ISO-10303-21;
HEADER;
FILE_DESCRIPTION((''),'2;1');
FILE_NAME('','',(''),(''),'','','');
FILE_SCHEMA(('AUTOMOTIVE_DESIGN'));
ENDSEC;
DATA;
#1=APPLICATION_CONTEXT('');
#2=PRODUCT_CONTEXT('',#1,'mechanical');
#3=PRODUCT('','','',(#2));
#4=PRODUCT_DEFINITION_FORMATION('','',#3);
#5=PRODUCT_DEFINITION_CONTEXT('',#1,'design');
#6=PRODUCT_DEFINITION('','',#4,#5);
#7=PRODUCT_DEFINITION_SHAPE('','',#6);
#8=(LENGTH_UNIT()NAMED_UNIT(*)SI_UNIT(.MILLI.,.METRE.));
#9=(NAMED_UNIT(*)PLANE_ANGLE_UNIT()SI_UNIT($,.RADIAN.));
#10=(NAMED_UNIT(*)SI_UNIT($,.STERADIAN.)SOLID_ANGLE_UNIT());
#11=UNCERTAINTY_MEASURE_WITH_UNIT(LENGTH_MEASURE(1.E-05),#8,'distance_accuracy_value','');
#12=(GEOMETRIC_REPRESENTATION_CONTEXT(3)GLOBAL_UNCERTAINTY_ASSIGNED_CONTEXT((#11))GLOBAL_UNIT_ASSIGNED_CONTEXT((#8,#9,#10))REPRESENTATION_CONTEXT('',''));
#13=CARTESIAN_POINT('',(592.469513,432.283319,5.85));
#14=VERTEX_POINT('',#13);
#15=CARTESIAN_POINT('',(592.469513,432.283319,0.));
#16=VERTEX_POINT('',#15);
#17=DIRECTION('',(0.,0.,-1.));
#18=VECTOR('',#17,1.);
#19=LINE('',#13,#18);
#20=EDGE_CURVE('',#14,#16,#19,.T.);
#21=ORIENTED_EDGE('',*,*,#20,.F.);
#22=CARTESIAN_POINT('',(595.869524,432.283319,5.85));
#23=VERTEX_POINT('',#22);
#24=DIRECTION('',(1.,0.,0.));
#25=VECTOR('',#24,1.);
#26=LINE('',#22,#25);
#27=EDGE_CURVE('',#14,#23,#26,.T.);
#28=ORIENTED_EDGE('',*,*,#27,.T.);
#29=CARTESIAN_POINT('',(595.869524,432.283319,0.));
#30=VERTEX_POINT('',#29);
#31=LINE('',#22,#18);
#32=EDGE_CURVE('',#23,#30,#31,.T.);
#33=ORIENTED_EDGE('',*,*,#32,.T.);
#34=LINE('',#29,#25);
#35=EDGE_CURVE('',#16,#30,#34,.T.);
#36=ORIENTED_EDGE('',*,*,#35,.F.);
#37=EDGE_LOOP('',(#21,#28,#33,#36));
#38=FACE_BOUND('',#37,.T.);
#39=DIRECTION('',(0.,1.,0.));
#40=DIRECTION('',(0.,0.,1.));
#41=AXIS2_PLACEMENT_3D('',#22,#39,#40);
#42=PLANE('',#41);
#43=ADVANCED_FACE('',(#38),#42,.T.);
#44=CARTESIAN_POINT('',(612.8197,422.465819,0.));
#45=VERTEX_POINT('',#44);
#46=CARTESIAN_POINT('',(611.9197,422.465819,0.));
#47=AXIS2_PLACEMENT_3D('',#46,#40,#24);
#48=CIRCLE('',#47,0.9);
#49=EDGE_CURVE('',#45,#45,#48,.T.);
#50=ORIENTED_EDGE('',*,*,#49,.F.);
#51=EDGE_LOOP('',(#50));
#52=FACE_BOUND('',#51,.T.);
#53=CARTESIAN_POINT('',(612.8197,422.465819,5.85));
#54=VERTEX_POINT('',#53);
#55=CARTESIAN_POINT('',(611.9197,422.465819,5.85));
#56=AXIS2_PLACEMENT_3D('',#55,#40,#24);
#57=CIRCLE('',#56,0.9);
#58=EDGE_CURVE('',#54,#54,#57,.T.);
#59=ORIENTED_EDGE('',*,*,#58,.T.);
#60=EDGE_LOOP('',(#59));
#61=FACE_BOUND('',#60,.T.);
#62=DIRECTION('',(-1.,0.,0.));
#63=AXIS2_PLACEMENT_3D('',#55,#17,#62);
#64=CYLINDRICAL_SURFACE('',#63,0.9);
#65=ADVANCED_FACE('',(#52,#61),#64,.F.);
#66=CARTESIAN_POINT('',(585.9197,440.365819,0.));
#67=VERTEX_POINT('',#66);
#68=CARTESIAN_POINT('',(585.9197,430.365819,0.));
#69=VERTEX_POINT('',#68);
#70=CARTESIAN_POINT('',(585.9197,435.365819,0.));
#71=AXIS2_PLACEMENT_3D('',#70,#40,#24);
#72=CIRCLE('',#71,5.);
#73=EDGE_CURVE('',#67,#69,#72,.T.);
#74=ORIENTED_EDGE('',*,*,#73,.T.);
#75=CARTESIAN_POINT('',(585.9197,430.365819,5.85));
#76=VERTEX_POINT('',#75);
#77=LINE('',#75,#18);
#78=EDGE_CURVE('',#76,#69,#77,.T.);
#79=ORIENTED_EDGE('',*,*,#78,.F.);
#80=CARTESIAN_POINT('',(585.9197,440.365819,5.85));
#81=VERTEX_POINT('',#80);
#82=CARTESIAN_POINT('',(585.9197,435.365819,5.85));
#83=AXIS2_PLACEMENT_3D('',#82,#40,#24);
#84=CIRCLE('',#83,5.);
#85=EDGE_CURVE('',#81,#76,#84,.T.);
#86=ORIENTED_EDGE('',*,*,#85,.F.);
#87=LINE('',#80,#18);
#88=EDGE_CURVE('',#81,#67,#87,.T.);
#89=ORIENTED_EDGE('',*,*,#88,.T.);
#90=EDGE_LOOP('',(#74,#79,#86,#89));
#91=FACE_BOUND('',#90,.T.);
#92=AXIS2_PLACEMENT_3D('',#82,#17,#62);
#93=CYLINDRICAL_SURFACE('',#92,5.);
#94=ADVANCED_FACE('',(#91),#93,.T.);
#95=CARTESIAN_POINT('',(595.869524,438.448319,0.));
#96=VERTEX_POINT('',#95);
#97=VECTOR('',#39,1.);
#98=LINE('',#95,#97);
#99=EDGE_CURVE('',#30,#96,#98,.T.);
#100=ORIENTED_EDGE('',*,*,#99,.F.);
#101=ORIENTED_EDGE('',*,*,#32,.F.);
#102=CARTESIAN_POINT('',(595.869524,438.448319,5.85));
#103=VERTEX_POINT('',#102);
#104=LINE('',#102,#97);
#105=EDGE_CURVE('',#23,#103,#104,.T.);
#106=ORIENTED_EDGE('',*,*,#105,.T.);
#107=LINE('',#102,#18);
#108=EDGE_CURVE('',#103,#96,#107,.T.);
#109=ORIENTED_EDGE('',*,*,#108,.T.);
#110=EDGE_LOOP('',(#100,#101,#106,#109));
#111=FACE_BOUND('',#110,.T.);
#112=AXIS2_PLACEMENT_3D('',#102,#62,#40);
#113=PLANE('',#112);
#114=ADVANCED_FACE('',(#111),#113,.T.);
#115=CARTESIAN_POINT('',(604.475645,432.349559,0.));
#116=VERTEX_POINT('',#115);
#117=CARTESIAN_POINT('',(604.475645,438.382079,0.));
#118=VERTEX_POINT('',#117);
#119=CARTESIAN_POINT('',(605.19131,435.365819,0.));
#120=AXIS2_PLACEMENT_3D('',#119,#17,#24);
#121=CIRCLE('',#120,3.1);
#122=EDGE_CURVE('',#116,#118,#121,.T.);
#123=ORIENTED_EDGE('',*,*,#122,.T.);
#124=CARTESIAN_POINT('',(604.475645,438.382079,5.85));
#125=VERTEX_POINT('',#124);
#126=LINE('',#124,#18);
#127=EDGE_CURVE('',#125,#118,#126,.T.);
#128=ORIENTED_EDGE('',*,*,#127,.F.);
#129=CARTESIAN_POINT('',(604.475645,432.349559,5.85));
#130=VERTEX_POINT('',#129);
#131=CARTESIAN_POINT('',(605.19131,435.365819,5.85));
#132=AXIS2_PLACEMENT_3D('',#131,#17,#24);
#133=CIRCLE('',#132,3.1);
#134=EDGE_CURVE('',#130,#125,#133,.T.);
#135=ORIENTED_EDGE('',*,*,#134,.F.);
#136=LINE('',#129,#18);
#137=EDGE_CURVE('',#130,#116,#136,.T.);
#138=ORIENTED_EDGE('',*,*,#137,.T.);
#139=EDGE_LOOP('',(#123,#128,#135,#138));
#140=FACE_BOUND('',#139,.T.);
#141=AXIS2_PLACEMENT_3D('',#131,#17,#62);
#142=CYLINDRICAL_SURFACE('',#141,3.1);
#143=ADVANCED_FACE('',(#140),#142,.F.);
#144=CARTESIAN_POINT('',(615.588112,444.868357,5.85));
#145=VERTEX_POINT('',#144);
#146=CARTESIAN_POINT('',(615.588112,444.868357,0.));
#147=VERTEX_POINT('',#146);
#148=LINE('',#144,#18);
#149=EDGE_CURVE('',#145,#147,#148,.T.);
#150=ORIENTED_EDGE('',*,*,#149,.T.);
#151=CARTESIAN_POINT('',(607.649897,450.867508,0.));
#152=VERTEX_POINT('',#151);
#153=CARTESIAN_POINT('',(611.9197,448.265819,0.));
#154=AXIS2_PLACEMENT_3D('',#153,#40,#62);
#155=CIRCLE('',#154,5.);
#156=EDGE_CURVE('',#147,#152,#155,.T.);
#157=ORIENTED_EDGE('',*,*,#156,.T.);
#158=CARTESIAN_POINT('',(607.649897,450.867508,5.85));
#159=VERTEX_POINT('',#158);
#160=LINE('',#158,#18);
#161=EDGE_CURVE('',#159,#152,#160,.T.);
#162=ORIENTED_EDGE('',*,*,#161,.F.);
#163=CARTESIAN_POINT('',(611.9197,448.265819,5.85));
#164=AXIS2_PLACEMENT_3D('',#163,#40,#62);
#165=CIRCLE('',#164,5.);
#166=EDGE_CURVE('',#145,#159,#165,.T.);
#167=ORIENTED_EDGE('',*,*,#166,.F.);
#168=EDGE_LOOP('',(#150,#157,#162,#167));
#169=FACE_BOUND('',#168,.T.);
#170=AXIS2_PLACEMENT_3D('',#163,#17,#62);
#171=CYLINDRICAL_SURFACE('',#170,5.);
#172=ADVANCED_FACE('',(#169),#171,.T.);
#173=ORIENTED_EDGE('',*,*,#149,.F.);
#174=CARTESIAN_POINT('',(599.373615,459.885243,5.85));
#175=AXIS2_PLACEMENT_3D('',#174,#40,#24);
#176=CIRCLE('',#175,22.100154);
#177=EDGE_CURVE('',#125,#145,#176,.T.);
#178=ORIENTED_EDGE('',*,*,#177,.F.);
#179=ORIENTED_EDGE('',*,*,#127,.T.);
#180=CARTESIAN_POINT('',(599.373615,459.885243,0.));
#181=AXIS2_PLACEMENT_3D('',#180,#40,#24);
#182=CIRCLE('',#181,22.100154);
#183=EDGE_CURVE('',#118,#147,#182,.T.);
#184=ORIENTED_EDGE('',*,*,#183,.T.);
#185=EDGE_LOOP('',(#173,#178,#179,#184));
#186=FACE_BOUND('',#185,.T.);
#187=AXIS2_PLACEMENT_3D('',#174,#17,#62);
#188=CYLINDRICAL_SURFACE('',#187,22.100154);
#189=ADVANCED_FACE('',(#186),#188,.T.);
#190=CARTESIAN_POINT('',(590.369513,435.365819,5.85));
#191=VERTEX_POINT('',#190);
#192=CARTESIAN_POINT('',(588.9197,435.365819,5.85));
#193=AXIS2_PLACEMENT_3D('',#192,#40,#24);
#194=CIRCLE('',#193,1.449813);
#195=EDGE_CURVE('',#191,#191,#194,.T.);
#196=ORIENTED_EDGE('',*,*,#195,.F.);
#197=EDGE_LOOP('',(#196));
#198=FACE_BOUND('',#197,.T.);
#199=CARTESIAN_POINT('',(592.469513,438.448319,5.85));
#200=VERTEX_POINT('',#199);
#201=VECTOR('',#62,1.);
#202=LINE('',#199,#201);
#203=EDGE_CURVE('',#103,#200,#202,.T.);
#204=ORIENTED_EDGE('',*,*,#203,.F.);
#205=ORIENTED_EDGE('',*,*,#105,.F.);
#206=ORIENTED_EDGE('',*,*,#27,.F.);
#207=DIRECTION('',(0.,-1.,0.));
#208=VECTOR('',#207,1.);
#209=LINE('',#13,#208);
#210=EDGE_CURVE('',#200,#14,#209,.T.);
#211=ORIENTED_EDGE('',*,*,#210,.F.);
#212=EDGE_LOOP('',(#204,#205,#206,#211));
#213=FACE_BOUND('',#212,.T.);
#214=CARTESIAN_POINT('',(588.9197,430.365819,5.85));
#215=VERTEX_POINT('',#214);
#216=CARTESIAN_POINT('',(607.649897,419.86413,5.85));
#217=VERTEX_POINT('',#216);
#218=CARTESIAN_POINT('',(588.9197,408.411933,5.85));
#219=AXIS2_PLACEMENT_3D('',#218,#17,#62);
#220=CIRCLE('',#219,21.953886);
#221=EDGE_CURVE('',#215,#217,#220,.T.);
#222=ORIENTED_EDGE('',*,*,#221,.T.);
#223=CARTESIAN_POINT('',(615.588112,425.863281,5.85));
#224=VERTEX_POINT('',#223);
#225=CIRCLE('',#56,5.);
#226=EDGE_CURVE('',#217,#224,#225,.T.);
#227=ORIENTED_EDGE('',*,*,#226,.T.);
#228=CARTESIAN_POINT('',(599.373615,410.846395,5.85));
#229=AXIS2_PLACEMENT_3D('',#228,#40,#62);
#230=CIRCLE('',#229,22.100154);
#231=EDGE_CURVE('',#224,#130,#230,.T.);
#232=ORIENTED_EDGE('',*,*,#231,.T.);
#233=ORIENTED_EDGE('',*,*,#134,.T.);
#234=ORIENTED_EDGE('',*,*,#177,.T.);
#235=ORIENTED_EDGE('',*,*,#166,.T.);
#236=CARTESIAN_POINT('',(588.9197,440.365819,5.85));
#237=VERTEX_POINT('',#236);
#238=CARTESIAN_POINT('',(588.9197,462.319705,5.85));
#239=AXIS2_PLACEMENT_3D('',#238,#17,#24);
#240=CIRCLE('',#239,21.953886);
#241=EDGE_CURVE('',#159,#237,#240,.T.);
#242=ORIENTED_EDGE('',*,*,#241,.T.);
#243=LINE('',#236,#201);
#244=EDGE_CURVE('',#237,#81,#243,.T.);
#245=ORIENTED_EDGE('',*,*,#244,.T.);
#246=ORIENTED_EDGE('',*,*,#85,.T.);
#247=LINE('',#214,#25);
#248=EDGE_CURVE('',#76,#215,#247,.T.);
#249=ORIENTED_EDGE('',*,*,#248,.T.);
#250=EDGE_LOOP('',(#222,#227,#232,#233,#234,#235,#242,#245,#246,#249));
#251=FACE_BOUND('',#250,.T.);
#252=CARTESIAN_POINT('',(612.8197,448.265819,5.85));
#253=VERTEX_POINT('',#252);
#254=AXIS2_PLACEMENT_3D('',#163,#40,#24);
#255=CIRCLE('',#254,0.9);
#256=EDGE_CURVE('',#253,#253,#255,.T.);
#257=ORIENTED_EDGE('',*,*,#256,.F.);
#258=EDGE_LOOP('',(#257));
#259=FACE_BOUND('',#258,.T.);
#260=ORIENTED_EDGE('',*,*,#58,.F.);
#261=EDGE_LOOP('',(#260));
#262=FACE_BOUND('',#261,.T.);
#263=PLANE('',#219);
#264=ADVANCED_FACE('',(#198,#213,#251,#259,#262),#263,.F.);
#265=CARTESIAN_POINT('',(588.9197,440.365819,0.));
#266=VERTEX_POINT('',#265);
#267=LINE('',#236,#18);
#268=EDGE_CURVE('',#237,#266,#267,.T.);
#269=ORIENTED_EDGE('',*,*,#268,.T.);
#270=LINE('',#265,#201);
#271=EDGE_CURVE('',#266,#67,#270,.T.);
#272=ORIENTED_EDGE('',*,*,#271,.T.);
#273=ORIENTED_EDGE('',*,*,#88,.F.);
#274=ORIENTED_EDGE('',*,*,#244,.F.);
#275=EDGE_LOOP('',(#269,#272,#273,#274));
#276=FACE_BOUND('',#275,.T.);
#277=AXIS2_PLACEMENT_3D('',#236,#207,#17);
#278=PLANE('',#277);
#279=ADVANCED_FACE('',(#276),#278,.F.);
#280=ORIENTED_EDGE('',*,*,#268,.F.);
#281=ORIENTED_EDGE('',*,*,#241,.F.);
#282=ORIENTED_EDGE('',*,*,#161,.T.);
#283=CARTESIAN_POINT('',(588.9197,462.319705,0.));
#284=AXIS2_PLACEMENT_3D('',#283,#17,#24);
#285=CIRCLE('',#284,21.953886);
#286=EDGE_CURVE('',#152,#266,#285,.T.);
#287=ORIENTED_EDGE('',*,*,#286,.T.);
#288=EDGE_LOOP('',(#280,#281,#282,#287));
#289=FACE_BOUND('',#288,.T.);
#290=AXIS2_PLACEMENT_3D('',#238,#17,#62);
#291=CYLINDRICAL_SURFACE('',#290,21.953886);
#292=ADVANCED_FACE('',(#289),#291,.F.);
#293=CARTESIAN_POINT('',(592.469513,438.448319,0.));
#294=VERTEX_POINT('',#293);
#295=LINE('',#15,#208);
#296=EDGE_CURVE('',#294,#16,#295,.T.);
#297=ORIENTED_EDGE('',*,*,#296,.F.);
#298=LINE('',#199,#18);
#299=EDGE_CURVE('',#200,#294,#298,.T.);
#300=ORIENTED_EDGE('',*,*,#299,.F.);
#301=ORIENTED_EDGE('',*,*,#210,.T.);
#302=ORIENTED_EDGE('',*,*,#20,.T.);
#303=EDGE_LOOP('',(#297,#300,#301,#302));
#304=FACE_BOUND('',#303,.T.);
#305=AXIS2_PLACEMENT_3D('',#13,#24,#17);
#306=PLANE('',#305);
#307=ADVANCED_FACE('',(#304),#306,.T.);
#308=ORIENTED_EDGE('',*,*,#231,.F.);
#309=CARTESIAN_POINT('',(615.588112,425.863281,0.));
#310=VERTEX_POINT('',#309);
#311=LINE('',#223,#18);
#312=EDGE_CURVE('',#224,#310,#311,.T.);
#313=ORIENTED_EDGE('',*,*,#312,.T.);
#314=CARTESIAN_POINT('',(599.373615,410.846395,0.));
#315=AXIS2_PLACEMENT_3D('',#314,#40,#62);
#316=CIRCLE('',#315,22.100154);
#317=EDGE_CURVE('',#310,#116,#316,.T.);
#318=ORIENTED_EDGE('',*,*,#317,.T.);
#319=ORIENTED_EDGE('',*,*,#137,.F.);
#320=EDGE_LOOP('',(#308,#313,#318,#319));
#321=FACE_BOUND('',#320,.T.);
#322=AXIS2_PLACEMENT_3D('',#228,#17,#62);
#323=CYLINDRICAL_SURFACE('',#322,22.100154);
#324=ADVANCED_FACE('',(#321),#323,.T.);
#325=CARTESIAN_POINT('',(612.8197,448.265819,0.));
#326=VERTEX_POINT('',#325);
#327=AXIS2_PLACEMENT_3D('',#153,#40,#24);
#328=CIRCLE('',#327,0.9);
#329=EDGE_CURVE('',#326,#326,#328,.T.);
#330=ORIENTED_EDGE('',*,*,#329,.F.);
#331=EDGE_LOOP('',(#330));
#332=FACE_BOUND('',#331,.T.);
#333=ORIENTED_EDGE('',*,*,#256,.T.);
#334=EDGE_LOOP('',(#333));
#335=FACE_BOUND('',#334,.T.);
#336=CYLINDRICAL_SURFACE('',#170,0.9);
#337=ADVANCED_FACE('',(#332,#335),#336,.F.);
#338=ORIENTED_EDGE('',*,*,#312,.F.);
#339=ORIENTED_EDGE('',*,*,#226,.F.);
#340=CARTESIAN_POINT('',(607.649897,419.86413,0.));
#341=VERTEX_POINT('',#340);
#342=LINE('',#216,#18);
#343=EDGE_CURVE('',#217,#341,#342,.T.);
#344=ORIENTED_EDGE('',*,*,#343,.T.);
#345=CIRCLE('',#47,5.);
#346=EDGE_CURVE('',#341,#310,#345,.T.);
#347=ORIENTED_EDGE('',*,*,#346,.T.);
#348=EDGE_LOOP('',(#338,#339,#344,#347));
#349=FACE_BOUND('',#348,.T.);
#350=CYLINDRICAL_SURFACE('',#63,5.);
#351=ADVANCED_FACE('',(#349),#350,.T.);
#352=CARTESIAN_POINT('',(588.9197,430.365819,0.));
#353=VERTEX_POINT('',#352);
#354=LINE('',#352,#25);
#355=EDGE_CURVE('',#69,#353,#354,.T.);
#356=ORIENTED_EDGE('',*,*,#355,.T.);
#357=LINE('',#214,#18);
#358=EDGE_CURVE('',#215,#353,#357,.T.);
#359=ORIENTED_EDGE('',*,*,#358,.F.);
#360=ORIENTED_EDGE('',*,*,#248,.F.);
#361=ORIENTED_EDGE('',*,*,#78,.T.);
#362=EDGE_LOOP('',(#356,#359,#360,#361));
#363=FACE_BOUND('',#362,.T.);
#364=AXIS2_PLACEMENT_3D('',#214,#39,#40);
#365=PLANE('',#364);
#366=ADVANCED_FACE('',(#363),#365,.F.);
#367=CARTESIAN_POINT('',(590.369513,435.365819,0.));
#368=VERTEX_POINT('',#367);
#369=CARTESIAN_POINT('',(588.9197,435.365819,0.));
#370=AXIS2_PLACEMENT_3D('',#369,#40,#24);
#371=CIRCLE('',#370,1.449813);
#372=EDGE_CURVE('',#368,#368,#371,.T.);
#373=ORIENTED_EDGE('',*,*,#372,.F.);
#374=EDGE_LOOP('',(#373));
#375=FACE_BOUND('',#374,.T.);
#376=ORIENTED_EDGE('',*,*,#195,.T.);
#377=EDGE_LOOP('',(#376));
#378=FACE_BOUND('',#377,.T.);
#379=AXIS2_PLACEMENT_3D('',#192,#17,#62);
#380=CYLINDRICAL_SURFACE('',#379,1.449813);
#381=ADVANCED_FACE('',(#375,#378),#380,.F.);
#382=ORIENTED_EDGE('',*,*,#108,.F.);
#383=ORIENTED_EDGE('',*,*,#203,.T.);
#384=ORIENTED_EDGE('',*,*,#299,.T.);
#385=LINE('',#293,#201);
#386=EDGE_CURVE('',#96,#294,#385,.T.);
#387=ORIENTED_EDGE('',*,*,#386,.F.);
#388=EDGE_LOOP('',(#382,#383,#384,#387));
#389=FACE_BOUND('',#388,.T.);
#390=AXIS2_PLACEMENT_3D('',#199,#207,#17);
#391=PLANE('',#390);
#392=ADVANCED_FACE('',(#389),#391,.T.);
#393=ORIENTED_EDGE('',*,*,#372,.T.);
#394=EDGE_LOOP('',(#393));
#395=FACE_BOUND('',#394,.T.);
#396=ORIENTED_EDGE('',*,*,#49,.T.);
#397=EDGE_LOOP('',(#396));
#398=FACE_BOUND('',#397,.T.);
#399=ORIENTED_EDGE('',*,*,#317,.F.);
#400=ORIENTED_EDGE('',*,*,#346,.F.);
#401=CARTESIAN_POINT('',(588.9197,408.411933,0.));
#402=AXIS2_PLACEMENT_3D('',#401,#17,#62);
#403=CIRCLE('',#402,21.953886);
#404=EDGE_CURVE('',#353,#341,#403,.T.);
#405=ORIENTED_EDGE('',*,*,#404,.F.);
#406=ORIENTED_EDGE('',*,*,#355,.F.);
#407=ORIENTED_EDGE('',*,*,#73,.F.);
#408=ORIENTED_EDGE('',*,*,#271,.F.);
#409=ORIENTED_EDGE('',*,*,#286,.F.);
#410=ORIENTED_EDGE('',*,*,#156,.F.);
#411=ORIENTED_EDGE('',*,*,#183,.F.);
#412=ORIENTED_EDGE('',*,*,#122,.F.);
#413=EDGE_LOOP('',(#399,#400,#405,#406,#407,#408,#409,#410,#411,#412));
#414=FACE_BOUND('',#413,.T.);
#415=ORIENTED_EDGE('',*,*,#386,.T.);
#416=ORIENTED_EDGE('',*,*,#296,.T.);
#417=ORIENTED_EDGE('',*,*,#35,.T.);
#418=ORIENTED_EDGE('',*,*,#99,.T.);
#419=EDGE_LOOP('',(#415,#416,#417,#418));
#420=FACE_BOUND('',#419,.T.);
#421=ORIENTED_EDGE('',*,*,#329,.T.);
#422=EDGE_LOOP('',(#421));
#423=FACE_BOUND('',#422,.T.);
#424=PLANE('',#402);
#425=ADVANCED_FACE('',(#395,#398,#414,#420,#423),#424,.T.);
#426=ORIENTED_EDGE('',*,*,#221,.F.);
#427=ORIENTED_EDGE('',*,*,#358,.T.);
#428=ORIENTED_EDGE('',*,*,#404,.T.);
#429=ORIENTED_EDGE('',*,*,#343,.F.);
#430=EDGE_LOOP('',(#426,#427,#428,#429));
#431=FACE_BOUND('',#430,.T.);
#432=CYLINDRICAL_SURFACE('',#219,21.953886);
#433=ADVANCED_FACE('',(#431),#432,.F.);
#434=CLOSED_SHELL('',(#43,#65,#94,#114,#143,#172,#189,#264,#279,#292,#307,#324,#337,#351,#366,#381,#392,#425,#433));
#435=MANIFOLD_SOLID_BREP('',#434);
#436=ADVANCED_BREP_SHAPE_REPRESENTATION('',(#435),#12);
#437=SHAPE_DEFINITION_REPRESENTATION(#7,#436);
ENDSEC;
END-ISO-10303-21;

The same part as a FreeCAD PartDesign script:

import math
import FreeCAD as App
import Part
import Sketcher
Q = App.Units.Quantity


def add_polygon(sketch, points):
    """Adds a closed chain of lines whose ends are joined by coincident constraints."""
    first, n = sketch.GeometryCount, len(points)
    for a, b in zip(points, points[1:] + points[:1]):
        sketch.addGeometry(Part.LineSegment(App.Vector(*a, 0), App.Vector(*b, 0)), False)
    for i in range(n):
        sketch.addConstraint(Sketcher.Constraint("Coincident", first + i, 2, first + (i + 1) % n, 1))

doc = App.newDocument("Part")
body = doc.addObject("PartDesign::Body", "Body")

sketch1 = body.newObject("Sketcher::SketchObject", "Sketch")
sketch1.AttachmentSupport = (doc.getObject("XY_Plane"), [""])
sketch1.MapMode = "FlatFace"
sketch1.addGeometry(Part.LineSegment(App.Vector(588.9197, 440.365819, 0), App.Vector(585.9197, 440.365819, 0)), False)
sketch1.addGeometry(Part.ArcOfCircle(Part.Circle(App.Vector(585.9197, 435.365819, 0), App.Vector(0, 0, 1), 5), math.radians(90), math.radians(270)), False)
sketch1.addGeometry(Part.LineSegment(App.Vector(585.9197, 430.365819, 0), App.Vector(588.9197, 430.365819, 0)), False)
sketch1.addGeometry(Part.ArcOfCircle(Part.Circle(App.Vector(588.9197, 408.411933, 0), App.Vector(0, 0, 1), 21.953886), math.radians(31.442849), math.radians(90)), False)
sketch1.addGeometry(Part.ArcOfCircle(Part.Circle(App.Vector(611.9197, 422.465819, 0), App.Vector(0, 0, 1), 5), math.radians(-148.645085), math.radians(42.80399)), False)
sketch1.addGeometry(Part.ArcOfCircle(Part.Circle(App.Vector(599.373615, 410.846395, 0), App.Vector(0, 0, 1), 22.100154), math.radians(42.80399), math.radians(76.652322)), False)
sketch1.addGeometry(Part.ArcOfCircle(Part.Circle(App.Vector(605.19131, 435.365819, 0), App.Vector(0, 0, 1), 3.1), math.radians(103.347678), math.radians(256.652322)), False)
sketch1.addGeometry(Part.ArcOfCircle(Part.Circle(App.Vector(599.373615, 459.885243, 0), App.Vector(0, 0, 1), 22.100154), math.radians(-76.652322), math.radians(-42.80399)), False)
sketch1.addGeometry(Part.ArcOfCircle(Part.Circle(App.Vector(611.9197, 448.265819, 0), App.Vector(0, 0, 1), 5), math.radians(-42.80399), math.radians(148.645085)), False)
sketch1.addGeometry(Part.ArcOfCircle(Part.Circle(App.Vector(588.9197, 462.319705, 0), App.Vector(0, 0, 1), 21.953886), math.radians(-90), math.radians(-31.442849)), False)
sketch1.addGeometry(Part.Circle(App.Vector(611.9197, 422.465819, 0), App.Vector(0, 0, 1), 0.9), False)
sketch1.addGeometry(Part.Circle(App.Vector(588.9197, 435.365819, 0), App.Vector(0, 0, 1), 1.449813), False)
add_polygon(sketch1, [(595.869524, 432.283319), (592.469513, 432.283319), (592.469513, 438.448319), (595.869524, 438.448319)])
sketch1.addGeometry(Part.Circle(App.Vector(611.9197, 448.265819, 0), App.Vector(0, 0, 1), 0.9), False)
sketch1.addConstraint(Sketcher.Constraint("Tangent", 0, 2, 1, 1))
sketch1.addConstraint(Sketcher.Constraint("Tangent", 1, 2, 2, 1))
sketch1.addConstraint(Sketcher.Constraint("Tangent", 2, 2, 3, 2))
sketch1.addConstraint(Sketcher.Constraint("Coincident", 3, 1, 4, 1))
sketch1.addConstraint(Sketcher.Constraint("Tangent", 4, 2, 5, 1))
sketch1.addConstraint(Sketcher.Constraint("Tangent", 5, 2, 6, 2))
sketch1.addConstraint(Sketcher.Constraint("Tangent", 6, 1, 7, 1))
sketch1.addConstraint(Sketcher.Constraint("Tangent", 7, 2, 8, 1))
sketch1.addConstraint(Sketcher.Constraint("Coincident", 8, 2, 9, 2))
sketch1.addConstraint(Sketcher.Constraint("Tangent", 9, 1, 0, 1))
sketch1.addConstraint(Sketcher.Constraint("Horizontal", 0))
sketch1.addConstraint(Sketcher.Constraint("Horizontal", 2))
sketch1.addConstraint(Sketcher.Constraint("Horizontal", 12))
sketch1.addConstraint(Sketcher.Constraint("Vertical", 13))
sketch1.addConstraint(Sketcher.Constraint("Horizontal", 14))
sketch1.addConstraint(Sketcher.Constraint("Vertical", 15))
sketch1.addConstraint(Sketcher.Constraint("Coincident", 10, 3, 4, 3))
sketch1.addConstraint(Sketcher.Constraint("Coincident", 16, 3, 8, 3))
sketch1.addConstraint(Sketcher.Constraint("Equal", 1, 4))
sketch1.addConstraint(Sketcher.Constraint("Equal", 5, 7))
sketch1.addConstraint(Sketcher.Constraint("Equal", 4, 8))
sketch1.addConstraint(Sketcher.Constraint("Equal", 3, 9))
sketch1.addConstraint(Sketcher.Constraint("Equal", 10, 16))
sketch1.addConstraint(Sketcher.Constraint("Horizontal", 1, 3, 6, 3))
sketch1.addConstraint(Sketcher.Constraint("Horizontal", 6, 3, 11, 3))
sketch1.addConstraint(Sketcher.Constraint("Vertical", 5, 3, 7, 3))
sketch1.addConstraint(Sketcher.Constraint("Vertical", 4, 3, 8, 3))
sketch1.addConstraint(Sketcher.Constraint("Vertical", 3, 3, 9, 3))
sketch1.addConstraint(Sketcher.Constraint("Vertical", 9, 3, 11, 3))
sketch1.addConstraint(Sketcher.Constraint("Radius", 1, Q("5 mm")))
sketch1.addConstraint(Sketcher.Constraint("Diameter", 10, Q("1.8 mm")))
sketch1.addConstraint(Sketcher.Constraint("Radius", 6, Q("3.1 mm")))
sketch1.addConstraint(Sketcher.Constraint("DistanceX", 0, 2, 0, 1, Q("3 mm")))
sketch1.addConstraint(Sketcher.Constraint("DistanceX", 3, 3, 4, 3, Q("23 mm")))
sketch1.addConstraint(Sketcher.Constraint("DistanceY", 4, 3, 1, 3, Q("12.9 mm")))
sketch1.addConstraint(Sketcher.Constraint("DistanceY", 13, 1, 13, 2, Q("6.165 mm")))
sketch1.addConstraint(Sketcher.Constraint("Diameter", 11, Q("2.899626 mm")))
sketch1.addConstraint(Sketcher.Constraint("Radius", 3, Q("21.953886 mm")))
sketch1.addConstraint(Sketcher.Constraint("Radius", 5, Q("22.100154 mm")))
sketch1.addConstraint(Sketcher.Constraint("DistanceX", 12, 2, 12, 1, Q("3.400011 mm")))
sketch1.addConstraint(Sketcher.Constraint("DistanceX", -1, 1, 1, 3, Q("585.9197 mm")))
sketch1.addConstraint(Sketcher.Constraint("DistanceY", 5, 2, 7, 2, Q("12.518798 mm")))
sketch1.addConstraint(Sketcher.Constraint("DistanceY", 2, 2, 12, 2, Q("1.9175 mm")))
sketch1.addConstraint(Sketcher.Constraint("DistanceY", -1, 1, 1, 3, Q("435.365819 mm")))
sketch1.addConstraint(Sketcher.Constraint("DistanceX", 14, 2, 6, 1, Q("8.606122 mm")))
pad1 = body.newObject("PartDesign::Pad", "Pad")
pad1.Profile = sketch1
pad1.Length = 5.85

doc.recompute()
